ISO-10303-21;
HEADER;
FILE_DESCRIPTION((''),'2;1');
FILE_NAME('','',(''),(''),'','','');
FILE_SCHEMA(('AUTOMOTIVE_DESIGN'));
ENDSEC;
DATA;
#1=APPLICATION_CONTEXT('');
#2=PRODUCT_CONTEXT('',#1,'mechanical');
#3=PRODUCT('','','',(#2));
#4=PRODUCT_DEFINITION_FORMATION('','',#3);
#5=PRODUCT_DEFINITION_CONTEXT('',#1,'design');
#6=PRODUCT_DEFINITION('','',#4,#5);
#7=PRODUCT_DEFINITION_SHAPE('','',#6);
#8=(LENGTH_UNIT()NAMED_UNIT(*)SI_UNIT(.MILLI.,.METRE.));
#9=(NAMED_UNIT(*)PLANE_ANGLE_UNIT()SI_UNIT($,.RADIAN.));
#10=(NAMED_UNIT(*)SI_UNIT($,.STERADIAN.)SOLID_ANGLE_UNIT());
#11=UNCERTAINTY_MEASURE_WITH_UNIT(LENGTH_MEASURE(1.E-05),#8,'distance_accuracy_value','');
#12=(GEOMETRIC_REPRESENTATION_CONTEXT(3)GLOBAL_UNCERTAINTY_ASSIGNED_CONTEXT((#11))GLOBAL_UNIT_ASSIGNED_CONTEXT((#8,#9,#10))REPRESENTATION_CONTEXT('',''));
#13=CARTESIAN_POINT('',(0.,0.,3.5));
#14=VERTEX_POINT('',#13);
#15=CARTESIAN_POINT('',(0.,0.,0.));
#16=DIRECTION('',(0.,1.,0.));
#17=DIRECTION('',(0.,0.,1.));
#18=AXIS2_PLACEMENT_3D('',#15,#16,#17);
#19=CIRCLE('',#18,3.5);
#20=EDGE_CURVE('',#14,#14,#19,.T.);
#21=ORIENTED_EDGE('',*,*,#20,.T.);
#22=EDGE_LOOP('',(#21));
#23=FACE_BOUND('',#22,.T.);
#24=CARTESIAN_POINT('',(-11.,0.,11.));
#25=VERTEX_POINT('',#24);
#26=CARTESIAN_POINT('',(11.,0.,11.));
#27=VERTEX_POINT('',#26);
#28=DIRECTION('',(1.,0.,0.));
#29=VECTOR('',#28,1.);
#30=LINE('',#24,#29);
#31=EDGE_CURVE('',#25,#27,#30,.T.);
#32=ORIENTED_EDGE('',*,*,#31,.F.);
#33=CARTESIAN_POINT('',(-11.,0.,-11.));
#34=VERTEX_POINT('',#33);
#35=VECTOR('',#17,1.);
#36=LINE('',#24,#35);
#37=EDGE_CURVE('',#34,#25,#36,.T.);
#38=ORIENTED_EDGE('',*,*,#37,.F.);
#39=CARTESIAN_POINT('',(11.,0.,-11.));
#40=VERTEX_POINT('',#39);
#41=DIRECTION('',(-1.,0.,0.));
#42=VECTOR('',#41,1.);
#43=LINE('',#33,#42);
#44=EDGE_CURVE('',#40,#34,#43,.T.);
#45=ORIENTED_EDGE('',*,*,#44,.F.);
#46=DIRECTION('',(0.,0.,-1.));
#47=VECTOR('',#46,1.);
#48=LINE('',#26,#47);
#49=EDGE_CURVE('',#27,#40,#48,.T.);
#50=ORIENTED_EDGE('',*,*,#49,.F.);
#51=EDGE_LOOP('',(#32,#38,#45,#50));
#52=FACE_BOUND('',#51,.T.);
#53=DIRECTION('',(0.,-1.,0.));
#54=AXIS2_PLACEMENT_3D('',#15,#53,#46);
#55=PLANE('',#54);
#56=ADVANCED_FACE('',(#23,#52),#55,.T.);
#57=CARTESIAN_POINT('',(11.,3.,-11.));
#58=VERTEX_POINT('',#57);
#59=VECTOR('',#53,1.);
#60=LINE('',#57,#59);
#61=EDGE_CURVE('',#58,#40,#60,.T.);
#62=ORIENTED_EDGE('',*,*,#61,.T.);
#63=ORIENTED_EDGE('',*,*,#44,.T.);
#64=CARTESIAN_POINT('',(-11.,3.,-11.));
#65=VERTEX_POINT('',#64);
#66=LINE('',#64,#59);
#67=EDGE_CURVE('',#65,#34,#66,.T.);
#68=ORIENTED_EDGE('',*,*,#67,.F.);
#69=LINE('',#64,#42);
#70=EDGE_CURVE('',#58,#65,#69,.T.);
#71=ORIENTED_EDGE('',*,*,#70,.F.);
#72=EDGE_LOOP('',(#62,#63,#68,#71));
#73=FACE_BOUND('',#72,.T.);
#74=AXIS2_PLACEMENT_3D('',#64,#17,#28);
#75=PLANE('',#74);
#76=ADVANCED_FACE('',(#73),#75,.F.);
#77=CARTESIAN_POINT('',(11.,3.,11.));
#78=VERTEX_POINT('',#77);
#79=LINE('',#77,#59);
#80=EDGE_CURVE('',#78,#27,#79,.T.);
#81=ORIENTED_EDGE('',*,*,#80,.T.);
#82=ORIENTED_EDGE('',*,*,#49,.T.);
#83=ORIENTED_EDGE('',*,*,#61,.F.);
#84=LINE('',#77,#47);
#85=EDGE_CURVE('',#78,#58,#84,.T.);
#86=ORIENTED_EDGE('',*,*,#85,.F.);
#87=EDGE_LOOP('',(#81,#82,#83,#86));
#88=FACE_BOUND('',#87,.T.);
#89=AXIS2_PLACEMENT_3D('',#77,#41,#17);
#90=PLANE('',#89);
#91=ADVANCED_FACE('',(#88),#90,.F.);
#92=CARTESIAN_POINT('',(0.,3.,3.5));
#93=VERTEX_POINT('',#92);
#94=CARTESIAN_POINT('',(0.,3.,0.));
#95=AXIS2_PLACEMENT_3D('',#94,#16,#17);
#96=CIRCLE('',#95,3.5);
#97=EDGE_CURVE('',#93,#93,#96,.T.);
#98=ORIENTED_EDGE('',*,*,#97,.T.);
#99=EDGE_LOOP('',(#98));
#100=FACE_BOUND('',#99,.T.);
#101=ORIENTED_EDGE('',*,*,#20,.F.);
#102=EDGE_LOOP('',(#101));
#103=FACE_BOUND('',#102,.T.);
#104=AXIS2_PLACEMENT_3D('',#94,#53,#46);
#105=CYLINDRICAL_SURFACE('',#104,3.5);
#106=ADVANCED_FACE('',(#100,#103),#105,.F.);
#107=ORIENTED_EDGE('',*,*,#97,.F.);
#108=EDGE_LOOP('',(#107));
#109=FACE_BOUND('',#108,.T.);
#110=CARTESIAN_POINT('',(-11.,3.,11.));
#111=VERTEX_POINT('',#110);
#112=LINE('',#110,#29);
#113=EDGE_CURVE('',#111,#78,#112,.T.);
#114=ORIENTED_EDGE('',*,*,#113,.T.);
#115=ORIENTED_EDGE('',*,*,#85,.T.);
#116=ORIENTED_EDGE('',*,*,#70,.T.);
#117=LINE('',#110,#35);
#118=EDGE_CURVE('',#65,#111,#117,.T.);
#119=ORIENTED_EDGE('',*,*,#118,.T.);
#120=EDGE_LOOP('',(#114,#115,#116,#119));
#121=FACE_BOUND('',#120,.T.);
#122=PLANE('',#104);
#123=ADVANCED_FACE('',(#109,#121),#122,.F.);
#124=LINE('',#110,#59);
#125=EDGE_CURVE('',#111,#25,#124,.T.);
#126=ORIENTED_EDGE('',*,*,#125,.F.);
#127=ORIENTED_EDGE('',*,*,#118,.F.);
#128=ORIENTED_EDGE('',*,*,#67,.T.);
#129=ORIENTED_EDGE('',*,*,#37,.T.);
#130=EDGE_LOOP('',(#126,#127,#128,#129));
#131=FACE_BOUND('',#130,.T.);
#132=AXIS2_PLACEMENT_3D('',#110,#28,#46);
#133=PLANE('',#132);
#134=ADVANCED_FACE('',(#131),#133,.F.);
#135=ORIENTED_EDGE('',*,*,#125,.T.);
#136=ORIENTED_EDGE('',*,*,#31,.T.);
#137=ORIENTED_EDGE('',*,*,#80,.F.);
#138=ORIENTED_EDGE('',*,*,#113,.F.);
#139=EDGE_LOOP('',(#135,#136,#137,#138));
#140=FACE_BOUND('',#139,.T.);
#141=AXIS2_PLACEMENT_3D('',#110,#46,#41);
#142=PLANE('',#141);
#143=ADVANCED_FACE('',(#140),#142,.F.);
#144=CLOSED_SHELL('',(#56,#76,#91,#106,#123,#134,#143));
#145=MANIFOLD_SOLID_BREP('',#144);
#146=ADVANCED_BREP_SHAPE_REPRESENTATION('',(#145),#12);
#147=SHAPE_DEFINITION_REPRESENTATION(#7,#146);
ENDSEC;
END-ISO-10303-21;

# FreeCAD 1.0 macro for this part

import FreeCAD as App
import Part
import Sketcher
Q = App.Units.Quantity

doc = App.newDocument("Part")
body = doc.addObject("PartDesign::Body", "Body")

# Sketch on XZ plane
sketch1 = doc.addObject("Sketcher::SketchObject", "Sketch")
body.addObject(sketch1)
sketch1.AttachmentSupport = (doc.XZ_Plane, [""])
sketch1.MapMode = "FlatFace"
sketch1.addGeometry(Part.LineSegment(App.Vector(-11, -11, 0), App.Vector(-11, 11, 0)), False)
sketch1.addGeometry(Part.LineSegment(App.Vector(-11, 11, 0), App.Vector(11, 11, 0)), False)
sketch1.addGeometry(Part.LineSegment(App.Vector(11, 11, 0), App.Vector(11, -11, 0)), False)
sketch1.addGeometry(Part.LineSegment(App.Vector(11, -11, 0), App.Vector(-11, -11, 0)), False)
sketch1.addGeometry(Part.Circle(App.Vector(0, 0, 0), App.Vector(0, 0, 1), 3.5), False)
sketch1.addConstraint(Sketcher.Constraint("Coincident", 0, 2, 1, 1))
sketch1.addConstraint(Sketcher.Constraint("Coincident", 1, 2, 2, 1))
sketch1.addConstraint(Sketcher.Constraint("Coincident", 2, 2, 3, 1))
sketch1.addConstraint(Sketcher.Constraint("Coincident", 3, 2, 0, 1))
sketch1.addConstraint(Sketcher.Constraint("Vertical", 0))
sketch1.addConstraint(Sketcher.Constraint("Horizontal", 1))
sketch1.addConstraint(Sketcher.Constraint("Vertical", 2))
sketch1.addConstraint(Sketcher.Constraint("Horizontal", 3))
sketch1.addConstraint(Sketcher.Constraint("Coincident", 4, 3, -1, 1))
sketch1.addConstraint(Sketcher.Constraint("Symmetric", 0, 2, 2, 2, -1, 1))
sketch1.addConstraint(Sketcher.Constraint("Equal", 3, 0))
sketch1.addConstraint(Sketcher.Constraint("Diameter", 4, Q("7 mm")))
sketch1.addConstraint(Sketcher.Constraint("DistanceX", 1, 1, 1, 2, Q("22 mm")))
pad1 = doc.addObject("PartDesign::Pad", "Pad")
body.addObject(pad1)
pad1.Profile = sketch1
pad1.Length = 3
pad1.Reversed = True

doc.recompute()
